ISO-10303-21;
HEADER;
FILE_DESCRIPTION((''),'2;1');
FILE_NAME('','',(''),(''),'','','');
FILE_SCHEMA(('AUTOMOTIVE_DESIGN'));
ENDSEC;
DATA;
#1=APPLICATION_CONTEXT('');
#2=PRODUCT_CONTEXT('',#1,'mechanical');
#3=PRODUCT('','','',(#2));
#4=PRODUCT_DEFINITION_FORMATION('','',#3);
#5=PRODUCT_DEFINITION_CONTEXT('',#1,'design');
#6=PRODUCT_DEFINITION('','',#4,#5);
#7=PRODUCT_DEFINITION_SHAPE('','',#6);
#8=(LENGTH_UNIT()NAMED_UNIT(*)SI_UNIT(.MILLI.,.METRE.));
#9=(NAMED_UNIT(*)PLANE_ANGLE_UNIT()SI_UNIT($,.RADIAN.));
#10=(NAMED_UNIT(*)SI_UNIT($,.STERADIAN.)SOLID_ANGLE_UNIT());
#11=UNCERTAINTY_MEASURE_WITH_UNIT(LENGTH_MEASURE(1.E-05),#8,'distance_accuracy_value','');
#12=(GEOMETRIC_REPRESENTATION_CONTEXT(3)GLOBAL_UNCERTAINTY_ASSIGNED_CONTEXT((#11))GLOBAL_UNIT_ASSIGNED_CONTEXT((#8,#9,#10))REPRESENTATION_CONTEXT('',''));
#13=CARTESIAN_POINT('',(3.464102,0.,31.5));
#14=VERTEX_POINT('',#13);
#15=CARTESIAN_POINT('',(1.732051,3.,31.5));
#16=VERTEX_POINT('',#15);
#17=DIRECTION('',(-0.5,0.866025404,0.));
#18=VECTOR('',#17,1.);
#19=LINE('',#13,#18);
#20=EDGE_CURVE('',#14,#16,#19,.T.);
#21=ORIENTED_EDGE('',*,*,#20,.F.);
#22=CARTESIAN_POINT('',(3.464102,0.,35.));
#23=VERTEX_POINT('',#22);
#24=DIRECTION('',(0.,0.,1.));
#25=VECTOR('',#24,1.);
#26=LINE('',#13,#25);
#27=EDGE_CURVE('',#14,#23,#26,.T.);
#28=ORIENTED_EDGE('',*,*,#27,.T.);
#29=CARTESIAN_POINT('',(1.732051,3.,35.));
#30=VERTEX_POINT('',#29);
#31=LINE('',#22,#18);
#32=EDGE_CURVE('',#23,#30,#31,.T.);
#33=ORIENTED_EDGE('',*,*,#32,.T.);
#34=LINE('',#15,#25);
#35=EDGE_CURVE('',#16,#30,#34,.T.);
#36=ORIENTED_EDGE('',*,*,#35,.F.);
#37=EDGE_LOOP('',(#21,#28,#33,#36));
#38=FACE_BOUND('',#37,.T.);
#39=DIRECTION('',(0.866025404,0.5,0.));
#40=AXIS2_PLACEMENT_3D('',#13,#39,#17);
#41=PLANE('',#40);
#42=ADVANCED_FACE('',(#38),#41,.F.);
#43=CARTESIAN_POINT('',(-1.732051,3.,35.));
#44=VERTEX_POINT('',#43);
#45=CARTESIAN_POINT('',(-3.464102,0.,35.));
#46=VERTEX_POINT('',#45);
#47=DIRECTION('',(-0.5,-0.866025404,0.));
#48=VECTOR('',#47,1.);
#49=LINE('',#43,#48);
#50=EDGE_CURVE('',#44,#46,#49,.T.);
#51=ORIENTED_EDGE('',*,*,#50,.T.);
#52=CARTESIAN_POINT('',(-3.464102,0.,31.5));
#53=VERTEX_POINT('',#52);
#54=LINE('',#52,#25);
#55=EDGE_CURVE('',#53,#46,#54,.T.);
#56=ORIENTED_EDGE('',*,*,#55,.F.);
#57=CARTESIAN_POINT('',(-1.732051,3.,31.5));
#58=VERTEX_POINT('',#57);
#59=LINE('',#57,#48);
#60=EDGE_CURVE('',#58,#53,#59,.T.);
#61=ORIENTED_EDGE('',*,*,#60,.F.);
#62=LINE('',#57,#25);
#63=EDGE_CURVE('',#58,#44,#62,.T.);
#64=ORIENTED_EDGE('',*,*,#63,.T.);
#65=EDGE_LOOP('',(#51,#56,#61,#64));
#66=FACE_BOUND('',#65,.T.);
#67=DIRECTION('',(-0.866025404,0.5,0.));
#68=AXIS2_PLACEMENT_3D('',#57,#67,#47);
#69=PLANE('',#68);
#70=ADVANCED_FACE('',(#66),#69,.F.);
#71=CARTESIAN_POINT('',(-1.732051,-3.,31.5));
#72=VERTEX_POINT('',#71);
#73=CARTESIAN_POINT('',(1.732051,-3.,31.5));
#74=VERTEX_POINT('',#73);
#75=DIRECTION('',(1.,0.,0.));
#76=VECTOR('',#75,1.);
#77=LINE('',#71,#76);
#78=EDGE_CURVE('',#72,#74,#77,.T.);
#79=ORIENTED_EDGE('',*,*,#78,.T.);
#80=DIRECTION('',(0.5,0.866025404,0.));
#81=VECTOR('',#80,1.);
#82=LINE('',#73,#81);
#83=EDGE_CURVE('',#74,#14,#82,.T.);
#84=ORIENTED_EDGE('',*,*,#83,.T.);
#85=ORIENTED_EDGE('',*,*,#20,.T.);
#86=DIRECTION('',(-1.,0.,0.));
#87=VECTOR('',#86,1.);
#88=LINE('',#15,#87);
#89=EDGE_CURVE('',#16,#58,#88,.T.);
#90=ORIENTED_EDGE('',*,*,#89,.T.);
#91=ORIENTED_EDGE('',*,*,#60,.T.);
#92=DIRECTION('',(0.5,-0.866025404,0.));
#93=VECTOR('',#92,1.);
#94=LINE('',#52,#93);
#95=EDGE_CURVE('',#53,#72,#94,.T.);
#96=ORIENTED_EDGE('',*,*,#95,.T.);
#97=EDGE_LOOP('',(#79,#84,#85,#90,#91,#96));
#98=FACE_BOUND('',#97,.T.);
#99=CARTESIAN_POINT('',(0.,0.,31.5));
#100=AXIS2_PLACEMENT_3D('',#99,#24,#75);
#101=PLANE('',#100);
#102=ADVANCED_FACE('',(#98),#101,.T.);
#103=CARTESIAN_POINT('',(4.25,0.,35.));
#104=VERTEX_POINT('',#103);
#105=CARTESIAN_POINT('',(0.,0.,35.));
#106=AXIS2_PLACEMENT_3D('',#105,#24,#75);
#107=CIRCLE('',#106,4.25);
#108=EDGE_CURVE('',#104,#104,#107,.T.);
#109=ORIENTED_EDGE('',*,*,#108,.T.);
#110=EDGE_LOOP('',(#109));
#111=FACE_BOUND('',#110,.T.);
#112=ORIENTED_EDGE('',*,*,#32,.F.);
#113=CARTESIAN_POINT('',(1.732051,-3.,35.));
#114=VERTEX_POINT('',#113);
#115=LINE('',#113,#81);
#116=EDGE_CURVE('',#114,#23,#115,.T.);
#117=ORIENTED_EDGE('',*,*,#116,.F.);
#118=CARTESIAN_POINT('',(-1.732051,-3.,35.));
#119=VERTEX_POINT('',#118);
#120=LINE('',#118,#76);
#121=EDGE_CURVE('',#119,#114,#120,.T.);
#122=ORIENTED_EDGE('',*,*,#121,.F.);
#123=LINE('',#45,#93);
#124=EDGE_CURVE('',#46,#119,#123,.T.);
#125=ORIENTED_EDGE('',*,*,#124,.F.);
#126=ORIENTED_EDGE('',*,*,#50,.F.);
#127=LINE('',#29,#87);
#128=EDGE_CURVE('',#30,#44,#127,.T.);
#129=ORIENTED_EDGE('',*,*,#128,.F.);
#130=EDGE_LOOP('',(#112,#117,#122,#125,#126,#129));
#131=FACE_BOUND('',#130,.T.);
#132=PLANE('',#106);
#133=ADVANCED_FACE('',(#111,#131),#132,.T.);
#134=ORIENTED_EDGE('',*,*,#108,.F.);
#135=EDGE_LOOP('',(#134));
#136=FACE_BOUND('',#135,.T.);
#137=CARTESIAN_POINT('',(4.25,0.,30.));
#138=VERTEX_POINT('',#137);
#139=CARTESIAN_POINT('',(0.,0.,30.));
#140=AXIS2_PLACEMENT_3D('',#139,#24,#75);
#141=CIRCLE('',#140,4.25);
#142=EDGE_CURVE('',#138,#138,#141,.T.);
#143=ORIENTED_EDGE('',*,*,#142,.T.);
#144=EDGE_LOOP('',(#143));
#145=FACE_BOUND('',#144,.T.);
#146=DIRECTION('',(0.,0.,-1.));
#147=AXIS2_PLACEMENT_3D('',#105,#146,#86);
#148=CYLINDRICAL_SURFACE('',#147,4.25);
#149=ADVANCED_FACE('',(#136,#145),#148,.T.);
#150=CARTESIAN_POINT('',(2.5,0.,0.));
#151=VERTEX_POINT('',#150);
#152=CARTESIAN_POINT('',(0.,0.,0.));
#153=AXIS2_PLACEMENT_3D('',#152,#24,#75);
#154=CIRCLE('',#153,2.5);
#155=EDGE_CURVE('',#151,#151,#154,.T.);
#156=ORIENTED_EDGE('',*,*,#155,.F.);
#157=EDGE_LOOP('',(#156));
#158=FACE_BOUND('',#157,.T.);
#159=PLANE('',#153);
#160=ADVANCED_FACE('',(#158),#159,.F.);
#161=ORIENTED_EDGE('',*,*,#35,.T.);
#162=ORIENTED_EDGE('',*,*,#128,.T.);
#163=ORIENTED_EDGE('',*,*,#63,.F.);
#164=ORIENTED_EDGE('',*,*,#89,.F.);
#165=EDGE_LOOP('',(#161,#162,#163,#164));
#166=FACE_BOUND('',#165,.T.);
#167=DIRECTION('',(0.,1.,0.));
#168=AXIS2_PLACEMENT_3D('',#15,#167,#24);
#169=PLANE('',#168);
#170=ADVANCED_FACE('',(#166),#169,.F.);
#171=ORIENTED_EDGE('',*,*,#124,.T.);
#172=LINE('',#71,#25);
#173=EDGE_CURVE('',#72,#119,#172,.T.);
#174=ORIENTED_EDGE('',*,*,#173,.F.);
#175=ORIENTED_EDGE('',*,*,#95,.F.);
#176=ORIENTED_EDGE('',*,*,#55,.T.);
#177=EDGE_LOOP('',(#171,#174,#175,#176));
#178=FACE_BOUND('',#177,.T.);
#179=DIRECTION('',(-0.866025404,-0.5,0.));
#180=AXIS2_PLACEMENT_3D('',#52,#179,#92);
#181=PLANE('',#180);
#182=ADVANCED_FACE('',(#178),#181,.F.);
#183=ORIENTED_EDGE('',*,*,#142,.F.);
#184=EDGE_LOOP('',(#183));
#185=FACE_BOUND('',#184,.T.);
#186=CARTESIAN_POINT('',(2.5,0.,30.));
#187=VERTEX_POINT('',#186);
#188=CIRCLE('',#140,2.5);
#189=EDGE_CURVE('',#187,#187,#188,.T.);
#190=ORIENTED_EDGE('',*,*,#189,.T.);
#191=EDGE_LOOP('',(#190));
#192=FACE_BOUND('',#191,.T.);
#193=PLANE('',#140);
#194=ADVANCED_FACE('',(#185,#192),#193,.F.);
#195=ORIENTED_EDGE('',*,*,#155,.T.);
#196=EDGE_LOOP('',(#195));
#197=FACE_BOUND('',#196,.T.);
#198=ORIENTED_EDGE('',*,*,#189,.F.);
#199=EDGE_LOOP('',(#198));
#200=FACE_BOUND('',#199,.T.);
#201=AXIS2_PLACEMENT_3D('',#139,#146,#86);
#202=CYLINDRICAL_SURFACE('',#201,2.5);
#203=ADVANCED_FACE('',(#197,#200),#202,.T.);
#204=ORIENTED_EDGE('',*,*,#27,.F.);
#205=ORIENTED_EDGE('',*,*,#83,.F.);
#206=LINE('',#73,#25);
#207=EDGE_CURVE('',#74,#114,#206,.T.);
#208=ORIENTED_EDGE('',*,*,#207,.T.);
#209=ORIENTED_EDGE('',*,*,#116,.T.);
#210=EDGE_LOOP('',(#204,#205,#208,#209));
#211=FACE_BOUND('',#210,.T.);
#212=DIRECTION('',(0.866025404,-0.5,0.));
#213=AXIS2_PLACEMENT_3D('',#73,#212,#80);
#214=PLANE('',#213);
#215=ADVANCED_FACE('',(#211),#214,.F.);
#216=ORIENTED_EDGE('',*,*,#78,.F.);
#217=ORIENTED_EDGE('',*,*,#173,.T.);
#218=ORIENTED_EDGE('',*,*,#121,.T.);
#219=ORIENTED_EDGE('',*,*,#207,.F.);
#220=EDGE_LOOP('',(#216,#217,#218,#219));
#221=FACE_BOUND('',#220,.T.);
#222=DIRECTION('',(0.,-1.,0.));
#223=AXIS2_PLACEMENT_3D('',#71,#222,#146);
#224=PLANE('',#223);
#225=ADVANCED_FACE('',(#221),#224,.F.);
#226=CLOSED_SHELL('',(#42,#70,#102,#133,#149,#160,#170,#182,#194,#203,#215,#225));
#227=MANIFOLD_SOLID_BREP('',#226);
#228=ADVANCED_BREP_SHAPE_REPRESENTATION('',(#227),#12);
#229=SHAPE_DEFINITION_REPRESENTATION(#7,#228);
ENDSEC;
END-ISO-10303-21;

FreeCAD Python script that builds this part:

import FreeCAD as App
import Part
import Sketcher
Q = App.Units.Quantity


def add_polygon(sketch, points):
    """Adds a closed chain of lines whose ends are joined by coincident constraints."""
    first, n = sketch.GeometryCount, len(points)
    for a, b in zip(points, points[1:] + points[:1]):
        sketch.addGeometry(Part.LineSegment(App.Vector(*a, 0), App.Vector(*b, 0)), False)
    for i in range(n):
        sketch.addConstraint(Sketcher.Constraint("Coincident", first + i, 2, first + (i + 1) % n, 1))

doc = App.newDocument("Part")
body = doc.addObject("PartDesign::Body", "Body")

sketch1 = body.newObject("Sketcher::SketchObject", "Sketch")
sketch1.AttachmentSupport = (doc.getObject("XY_Plane"), [""])
sketch1.MapMode = "FlatFace"
sketch1.addGeometry(Part.Circle(App.Vector(0, 0, 0), App.Vector(0, 0, 1), 2.5), False)
sketch1.addConstraint([
    Sketcher.Constraint("Coincident", 0, 3, -1, 1),
    Sketcher.Constraint("Diameter", 0, Q("5 mm")),
])
pad1 = body.newObject("PartDesign::Pad", "Pad")
pad1.Profile = sketch1
pad1.Length = 30

sketch2 = body.newObject("Sketcher::SketchObject", "Sketch001")
sketch2.AttachmentSupport = (doc.getObject("XY_Plane"), [""])
sketch2.MapMode = "FlatFace"
sketch2.AttachmentOffset = App.Placement(App.Vector(0, 0, 30), App.Rotation())
sketch2.addGeometry(Part.Circle(App.Vector(0, 0, 0), App.Vector(0, 0, 1), 4.25), False)
sketch2.addConstraint([
    Sketcher.Constraint("Coincident", 0, 3, -1, 1),
    Sketcher.Constraint("Diameter", 0, Q("8.5 mm")),
])
pad2 = body.newObject("PartDesign::Pad", "Pad001")
pad2.Profile = sketch2
pad2.Length = 5

sketch3 = body.newObject("Sketcher::SketchObject", "Sketch002")
sketch3.AttachmentSupport = (doc.getObject("XY_Plane"), [""])
sketch3.MapMode = "FlatFace"
sketch3.AttachmentOffset = App.Placement(App.Vector(0, 0, 35), App.Rotation())
add_polygon(sketch3, [(3.464102, 0), (1.732051, 3), (-1.732051, 3), (-3.464102, 0), (-1.732051, -3), (1.732051, -3)])
sketch3.addConstraint([
    Sketcher.Constraint("Horizontal", 1),
    Sketcher.Constraint("Horizontal", 4),
    Sketcher.Constraint("Symmetric", 0, 2, 3, 2, -1, 1),
    Sketcher.Constraint("Symmetric", 2, 2, 5, 2, -1, 1),
    Sketcher.Constraint("PointOnObject", 2, 2, -1),
    Sketcher.Constraint("Parallel", 2, 5),
    Sketcher.Constraint("Vertical", 1, 2, 3, 2),
    Sketcher.Constraint("Angle", 0, Q("120 deg")),
    Sketcher.Constraint("DistanceY", -1, 1, 0, 2, Q("3 mm")),
    Sketcher.Constraint("DistanceX", 1, 2, 1, 1, Q("3.464102 mm")),
])
pocket1 = body.newObject("PartDesign::Pocket", "Pocket")
pocket1.Profile = sketch3
pocket1.Length = 3.5

doc.recompute()
